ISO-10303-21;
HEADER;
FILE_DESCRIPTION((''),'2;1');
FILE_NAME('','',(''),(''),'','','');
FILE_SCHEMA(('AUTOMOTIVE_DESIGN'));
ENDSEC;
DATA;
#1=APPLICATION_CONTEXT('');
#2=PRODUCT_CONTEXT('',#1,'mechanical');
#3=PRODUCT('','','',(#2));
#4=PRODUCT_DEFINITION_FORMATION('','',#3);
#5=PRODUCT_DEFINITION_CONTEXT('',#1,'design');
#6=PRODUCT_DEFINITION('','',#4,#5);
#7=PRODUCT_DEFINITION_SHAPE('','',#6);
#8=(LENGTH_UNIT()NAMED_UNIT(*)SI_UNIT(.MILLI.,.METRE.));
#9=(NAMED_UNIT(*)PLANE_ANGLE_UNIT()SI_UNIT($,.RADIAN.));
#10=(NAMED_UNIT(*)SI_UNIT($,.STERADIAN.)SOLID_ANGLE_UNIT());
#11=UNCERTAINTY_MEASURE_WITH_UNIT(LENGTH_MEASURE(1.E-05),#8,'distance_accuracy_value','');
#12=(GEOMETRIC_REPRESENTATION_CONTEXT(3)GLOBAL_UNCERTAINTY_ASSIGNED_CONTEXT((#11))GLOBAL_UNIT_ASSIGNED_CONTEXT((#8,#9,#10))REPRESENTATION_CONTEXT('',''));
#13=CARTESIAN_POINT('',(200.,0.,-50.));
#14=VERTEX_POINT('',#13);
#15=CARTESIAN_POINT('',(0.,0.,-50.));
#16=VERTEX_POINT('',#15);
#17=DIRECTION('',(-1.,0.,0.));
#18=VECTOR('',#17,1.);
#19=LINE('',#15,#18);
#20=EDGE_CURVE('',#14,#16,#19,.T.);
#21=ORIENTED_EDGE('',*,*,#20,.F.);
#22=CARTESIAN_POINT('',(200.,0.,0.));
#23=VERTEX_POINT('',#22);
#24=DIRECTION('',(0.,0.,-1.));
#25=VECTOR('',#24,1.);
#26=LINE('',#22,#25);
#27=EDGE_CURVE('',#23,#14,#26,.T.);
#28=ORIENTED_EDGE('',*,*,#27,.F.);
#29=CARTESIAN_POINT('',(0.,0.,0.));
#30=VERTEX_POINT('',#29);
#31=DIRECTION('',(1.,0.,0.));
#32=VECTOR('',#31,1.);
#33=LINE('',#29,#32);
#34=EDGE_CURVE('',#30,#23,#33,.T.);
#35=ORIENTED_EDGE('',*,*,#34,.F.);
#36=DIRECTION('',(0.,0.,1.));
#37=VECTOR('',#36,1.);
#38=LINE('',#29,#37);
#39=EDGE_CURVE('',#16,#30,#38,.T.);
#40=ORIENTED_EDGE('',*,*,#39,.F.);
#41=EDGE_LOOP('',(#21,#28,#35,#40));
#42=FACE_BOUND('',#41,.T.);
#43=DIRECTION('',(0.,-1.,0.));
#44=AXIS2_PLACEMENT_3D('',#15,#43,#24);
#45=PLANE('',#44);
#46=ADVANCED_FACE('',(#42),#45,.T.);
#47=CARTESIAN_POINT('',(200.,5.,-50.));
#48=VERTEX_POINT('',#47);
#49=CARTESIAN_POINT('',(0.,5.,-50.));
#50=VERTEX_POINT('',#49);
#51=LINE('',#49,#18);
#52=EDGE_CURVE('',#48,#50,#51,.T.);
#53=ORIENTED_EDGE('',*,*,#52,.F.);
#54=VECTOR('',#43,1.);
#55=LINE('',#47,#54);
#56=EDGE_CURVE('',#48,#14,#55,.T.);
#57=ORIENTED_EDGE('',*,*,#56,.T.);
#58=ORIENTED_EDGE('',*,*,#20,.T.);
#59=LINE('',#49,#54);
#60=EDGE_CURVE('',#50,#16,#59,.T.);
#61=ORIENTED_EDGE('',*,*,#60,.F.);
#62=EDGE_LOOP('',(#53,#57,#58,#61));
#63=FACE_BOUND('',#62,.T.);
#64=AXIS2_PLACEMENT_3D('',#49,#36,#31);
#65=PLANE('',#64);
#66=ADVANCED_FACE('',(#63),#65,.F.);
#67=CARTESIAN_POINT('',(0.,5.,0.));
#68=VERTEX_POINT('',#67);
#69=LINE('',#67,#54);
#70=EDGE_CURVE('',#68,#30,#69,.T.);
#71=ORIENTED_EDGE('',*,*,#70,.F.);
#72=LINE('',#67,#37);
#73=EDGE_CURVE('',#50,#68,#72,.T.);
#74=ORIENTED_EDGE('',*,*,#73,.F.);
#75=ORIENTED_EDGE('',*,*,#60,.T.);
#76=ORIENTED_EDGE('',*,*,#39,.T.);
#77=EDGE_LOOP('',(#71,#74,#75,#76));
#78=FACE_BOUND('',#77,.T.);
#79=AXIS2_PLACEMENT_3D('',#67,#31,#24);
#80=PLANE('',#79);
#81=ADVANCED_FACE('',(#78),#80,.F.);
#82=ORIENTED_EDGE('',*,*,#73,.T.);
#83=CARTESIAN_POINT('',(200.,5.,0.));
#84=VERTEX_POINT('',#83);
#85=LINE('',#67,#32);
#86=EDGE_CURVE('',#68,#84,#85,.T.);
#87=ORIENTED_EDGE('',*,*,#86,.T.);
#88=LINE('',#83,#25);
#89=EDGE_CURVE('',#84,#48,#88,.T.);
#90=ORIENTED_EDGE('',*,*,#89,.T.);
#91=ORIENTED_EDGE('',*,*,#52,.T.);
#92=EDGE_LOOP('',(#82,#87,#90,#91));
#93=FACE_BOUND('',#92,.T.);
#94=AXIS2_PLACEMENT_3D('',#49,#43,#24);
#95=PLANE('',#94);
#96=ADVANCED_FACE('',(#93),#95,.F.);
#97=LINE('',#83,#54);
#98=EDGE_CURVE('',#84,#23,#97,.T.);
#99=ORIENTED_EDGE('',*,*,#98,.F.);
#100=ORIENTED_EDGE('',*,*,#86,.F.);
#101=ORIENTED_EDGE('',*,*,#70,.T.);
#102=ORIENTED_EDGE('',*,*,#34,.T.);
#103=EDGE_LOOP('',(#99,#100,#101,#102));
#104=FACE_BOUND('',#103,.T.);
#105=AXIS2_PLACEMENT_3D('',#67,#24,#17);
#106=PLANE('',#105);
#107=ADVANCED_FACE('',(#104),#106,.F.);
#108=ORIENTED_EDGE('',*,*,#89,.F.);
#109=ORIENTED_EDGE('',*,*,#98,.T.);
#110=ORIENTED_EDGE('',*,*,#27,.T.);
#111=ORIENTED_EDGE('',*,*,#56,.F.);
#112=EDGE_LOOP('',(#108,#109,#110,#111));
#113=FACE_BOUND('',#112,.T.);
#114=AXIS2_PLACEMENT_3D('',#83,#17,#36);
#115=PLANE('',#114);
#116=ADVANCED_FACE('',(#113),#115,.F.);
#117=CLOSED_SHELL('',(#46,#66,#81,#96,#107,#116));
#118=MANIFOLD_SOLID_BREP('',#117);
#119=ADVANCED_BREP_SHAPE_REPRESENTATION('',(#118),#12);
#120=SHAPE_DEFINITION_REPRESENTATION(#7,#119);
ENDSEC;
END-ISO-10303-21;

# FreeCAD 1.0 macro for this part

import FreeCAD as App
import Part
import Sketcher
Q = App.Units.Quantity

doc = App.newDocument("Part")
body = doc.addObject("PartDesign::Body", "Body")

sketch1 = body.newObject("Sketcher::SketchObject", "Sketch")
sketch1.AttachmentSupport = (doc.getObject("XZ_Plane"), [""])
sketch1.MapMode = "FlatFace"
sketch1.addGeometry(Part.LineSegment(App.Vector(0, -50, 0), App.Vector(0, 0, 0)), False)
sketch1.addGeometry(Part.LineSegment(App.Vector(0, 0, 0), App.Vector(200, 0, 0)), False)
sketch1.addGeometry(Part.LineSegment(App.Vector(200, 0, 0), App.Vector(200, -50, 0)), False)
sketch1.addGeometry(Part.LineSegment(App.Vector(200, -50, 0), App.Vector(0, -50, 0)), False)
sketch1.addConstraint(Sketcher.Constraint("Coincident", 0, 2, 1, 1))
sketch1.addConstraint(Sketcher.Constraint("Coincident", 1, 2, 2, 1))
sketch1.addConstraint(Sketcher.Constraint("Coincident", 2, 2, 3, 1))
sketch1.addConstraint(Sketcher.Constraint("Coincident", 3, 2, 0, 1))
sketch1.addConstraint(Sketcher.Constraint("Vertical", 0))
sketch1.addConstraint(Sketcher.Constraint("Horizontal", 1))
sketch1.addConstraint(Sketcher.Constraint("Vertical", 2))
sketch1.addConstraint(Sketcher.Constraint("Horizontal", 3))
sketch1.addConstraint(Sketcher.Constraint("Coincident", 0, 2, -1, 1))
sketch1.addConstraint(Sketcher.Constraint("DistanceX", 1, 1, 1, 2, Q("200 mm")))
sketch1.addConstraint(Sketcher.Constraint("DistanceY", 0, 1, 0, 2, Q("50 mm")))
pad1 = body.newObject("PartDesign::Pad", "Pad")
pad1.Profile = sketch1
pad1.Length = 5
pad1.Reversed = True

doc.recompute()
